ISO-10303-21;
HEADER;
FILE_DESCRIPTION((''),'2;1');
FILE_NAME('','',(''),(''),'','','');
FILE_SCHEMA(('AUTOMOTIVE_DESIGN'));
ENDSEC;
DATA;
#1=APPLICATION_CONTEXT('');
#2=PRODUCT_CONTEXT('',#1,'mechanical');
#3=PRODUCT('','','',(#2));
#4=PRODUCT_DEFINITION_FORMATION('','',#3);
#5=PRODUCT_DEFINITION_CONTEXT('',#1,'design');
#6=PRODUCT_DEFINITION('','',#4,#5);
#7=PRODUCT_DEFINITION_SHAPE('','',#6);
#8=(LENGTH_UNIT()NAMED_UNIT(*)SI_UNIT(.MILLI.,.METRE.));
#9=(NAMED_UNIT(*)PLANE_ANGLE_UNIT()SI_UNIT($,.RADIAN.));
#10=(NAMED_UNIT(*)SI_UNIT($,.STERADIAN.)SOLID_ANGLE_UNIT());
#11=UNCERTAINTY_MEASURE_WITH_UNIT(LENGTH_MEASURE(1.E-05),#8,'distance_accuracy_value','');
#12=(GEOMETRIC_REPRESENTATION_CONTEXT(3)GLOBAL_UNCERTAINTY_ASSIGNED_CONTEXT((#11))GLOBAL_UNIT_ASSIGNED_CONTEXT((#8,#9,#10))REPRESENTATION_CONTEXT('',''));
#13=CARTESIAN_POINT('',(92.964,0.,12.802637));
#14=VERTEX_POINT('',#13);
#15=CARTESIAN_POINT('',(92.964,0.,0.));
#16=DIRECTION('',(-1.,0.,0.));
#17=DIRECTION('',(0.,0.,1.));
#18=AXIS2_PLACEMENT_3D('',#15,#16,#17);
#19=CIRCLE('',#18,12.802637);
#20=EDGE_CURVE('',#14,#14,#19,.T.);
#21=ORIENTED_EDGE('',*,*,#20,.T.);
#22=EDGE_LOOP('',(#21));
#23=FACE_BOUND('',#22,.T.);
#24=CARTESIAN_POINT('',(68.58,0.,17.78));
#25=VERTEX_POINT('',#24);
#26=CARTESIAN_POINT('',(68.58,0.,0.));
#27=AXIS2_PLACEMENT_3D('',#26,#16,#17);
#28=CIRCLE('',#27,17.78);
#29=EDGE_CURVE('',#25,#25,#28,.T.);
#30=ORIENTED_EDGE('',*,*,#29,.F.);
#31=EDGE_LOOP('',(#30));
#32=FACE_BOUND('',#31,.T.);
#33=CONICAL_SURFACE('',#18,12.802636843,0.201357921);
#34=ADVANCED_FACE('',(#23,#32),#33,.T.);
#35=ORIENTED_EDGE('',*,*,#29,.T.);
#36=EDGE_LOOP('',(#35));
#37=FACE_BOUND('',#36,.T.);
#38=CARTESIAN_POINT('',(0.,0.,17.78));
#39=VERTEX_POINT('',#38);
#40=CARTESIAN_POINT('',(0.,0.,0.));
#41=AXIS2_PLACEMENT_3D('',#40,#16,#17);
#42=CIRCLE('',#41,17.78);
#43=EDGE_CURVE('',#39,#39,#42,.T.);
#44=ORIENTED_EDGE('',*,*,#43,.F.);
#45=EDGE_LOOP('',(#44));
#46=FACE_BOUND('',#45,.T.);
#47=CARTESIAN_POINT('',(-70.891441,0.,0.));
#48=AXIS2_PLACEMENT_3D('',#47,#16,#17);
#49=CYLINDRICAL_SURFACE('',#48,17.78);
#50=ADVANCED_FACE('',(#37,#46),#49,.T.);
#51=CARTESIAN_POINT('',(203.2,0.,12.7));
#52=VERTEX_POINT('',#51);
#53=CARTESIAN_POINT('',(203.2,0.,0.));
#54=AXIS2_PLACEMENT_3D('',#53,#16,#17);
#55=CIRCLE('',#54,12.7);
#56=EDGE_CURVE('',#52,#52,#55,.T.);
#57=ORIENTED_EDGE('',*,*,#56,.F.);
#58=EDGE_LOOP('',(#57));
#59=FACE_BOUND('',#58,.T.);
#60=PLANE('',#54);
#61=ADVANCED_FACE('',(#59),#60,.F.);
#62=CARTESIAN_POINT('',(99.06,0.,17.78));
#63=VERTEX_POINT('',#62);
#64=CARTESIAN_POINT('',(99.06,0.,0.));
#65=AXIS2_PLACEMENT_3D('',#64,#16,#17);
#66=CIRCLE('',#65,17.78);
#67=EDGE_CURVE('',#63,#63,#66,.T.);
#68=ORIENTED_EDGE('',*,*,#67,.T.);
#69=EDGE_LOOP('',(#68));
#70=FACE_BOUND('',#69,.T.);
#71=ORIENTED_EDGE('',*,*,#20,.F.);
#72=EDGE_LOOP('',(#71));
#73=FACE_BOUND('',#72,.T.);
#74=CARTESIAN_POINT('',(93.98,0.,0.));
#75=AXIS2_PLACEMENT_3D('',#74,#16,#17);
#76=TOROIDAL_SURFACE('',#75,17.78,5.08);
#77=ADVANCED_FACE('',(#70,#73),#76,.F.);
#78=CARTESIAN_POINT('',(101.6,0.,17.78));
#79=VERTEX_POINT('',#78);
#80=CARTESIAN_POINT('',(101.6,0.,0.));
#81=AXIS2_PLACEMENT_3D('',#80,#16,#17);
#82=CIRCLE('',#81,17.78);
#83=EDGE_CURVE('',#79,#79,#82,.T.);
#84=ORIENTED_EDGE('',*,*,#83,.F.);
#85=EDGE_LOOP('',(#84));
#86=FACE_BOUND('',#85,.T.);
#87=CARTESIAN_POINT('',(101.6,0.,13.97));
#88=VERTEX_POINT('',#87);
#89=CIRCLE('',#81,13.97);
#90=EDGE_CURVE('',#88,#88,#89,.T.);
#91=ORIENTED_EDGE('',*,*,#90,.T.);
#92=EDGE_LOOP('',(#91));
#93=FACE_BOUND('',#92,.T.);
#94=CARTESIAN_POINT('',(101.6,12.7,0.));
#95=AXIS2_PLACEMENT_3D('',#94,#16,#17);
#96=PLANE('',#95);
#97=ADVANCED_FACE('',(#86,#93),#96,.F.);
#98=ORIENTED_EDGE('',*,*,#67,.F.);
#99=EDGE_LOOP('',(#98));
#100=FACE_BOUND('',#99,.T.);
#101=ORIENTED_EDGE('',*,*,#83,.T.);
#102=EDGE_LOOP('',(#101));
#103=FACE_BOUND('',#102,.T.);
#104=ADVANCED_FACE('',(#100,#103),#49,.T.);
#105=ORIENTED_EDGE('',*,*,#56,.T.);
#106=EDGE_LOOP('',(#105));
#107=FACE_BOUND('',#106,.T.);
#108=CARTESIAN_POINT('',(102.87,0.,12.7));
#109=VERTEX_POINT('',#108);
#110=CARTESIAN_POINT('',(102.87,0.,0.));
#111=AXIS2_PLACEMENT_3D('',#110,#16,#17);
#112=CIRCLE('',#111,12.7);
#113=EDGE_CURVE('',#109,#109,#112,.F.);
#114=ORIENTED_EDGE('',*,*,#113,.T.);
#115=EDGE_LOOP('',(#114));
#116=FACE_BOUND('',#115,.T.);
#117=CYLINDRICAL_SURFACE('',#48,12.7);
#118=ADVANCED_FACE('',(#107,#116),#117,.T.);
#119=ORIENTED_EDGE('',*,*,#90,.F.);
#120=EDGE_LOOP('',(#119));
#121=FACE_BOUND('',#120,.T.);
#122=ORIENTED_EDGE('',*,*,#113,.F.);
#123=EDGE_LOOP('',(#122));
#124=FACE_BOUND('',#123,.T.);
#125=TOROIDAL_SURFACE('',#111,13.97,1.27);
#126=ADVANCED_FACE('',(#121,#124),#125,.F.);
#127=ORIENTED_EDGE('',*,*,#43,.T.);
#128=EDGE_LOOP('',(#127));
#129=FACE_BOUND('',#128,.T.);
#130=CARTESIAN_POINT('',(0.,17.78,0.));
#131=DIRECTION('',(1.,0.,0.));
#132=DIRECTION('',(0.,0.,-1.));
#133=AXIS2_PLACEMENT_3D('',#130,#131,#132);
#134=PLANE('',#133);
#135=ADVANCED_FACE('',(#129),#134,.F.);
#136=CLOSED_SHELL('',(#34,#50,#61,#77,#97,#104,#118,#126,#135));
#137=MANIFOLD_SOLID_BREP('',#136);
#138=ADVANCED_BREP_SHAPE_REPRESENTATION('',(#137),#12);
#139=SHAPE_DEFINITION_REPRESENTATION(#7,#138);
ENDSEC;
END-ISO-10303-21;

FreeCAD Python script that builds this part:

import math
import FreeCAD as App
import Part
import Sketcher
from FreeCAD import Vector
Q = App.Units.Quantity


def edges_at(feature, points):
    """Names of the edges that pass closest to the given points."""
    edges = feature.Shape.Edges
    near = lambda p: min(range(len(edges)), key=lambda i: edges[i].distToShape(Part.Vertex(*p))[0])
    return sorted({f"Edge{near(p) + 1}" for p in points})

doc = App.newDocument("Part")
body = doc.addObject("PartDesign::Body", "Body")

sketch1 = body.newObject("Sketcher::SketchObject", "Sketch")
sketch1.AttachmentSupport = (doc.getObject("XY_Plane"), [""])
sketch1.MapMode = "FlatFace"
sketch1.addGeometry(Part.LineSegment(Vector(0, 17.8, 0), Vector(0, 0, 0)), False)
sketch1.addGeometry(Part.LineSegment(Vector(0, 0, 0), Vector(203.2, 0, 0)), False)
sketch1.addGeometry(Part.LineSegment(Vector(203.2, 0, 0), Vector(203.2, 12.7, 0)), False)
sketch1.addGeometry(Part.LineSegment(Vector(203.2, 12.7, 0), Vector(101.6, 12.7, 0)), False)
sketch1.addGeometry(Part.LineSegment(Vector(101.6, 12.7, 0), Vector(101.6, 17.8, 0)), False)
sketch1.addGeometry(Part.LineSegment(Vector(101.6, 17.8, 0), Vector(99.1, 17.8, 0)), False)
sketch1.addGeometry(Part.ArcOfCircle(Part.Circle(Vector(94, 17.8, 0), Vector(0, 0, 1), 5.1), math.radians(-102), math.radians(0)), False)
sketch1.addGeometry(Part.LineSegment(Vector(93, 12.8, 0), Vector(68.6, 17.8, 0)), False)
sketch1.addGeometry(Part.LineSegment(Vector(68.6, 17.8, 0), Vector(0, 17.8, 0)), False)
sketch1.addConstraint(Sketcher.Constraint("Coincident", 0, 2, 1, 1))
sketch1.addConstraint(Sketcher.Constraint("Coincident", 1, 2, 2, 1))
sketch1.addConstraint(Sketcher.Constraint("Coincident", 2, 2, 3, 1))
sketch1.addConstraint(Sketcher.Constraint("Coincident", 3, 2, 4, 1))
sketch1.addConstraint(Sketcher.Constraint("Coincident", 4, 2, 5, 1))
sketch1.addConstraint(Sketcher.Constraint("Coincident", 5, 2, 6, 2))
sketch1.addConstraint(Sketcher.Constraint("Tangent", 6, 1, 7, 1))
sketch1.addConstraint(Sketcher.Constraint("Coincident", 7, 2, 8, 1))
sketch1.addConstraint(Sketcher.Constraint("Coincident", 8, 2, 0, 1))
sketch1.addConstraint(Sketcher.Constraint("Vertical", 0))
sketch1.addConstraint(Sketcher.Constraint("Horizontal", 1))
sketch1.addConstraint(Sketcher.Constraint("Vertical", 2))
sketch1.addConstraint(Sketcher.Constraint("Horizontal", 3))
sketch1.addConstraint(Sketcher.Constraint("Vertical", 4))
sketch1.addConstraint(Sketcher.Constraint("Horizontal", 5))
sketch1.addConstraint(Sketcher.Constraint("Horizontal", 8))
sketch1.addConstraint(Sketcher.Constraint("Coincident", 0, 2, -1, 1))
sketch1.addConstraint(Sketcher.Constraint("Horizontal", 6, 3, 4, 2))
sketch1.addConstraint(Sketcher.Constraint("Horizontal", 5, 2, 7, 2))
sketch1.addConstraint(Sketcher.Constraint("Radius", 6, Q("0.2 in")))
sketch1.addConstraint(Sketcher.Constraint("DistanceX", 1, 1, 1, 2, Q("8 in")))
sketch1.addConstraint(Sketcher.Constraint("DistanceX", 3, 2, 3, 1, Q("4 in")))
sketch1.addConstraint(Sketcher.Constraint("DistanceX", 5, 2, 5, 1, Q("0.1 in")))
sketch1.addConstraint(Sketcher.Constraint("DistanceX", 8, 2, 8, 1, Q("2.7 in")))
sketch1.addConstraint(Sketcher.Constraint("DistanceY", 0, 2, 0, 1, Q("0.7 in")))
sketch1.addConstraint(Sketcher.Constraint("DistanceY", 2, 1, 2, 2, Q("0.5 in")))
revolution = body.newObject("PartDesign::Revolution", "Revolution")
revolution.Profile = sketch1
revolution.ReferenceAxis = (sketch1, ["H_Axis"])
revolution.Angle = 360
doc.recompute()

fillet = body.newObject("PartDesign::Fillet", "Fillet")
fillet.Base = (revolution, edges_at(revolution, [(101.6, -12.7, 0)]))
fillet.Radius = Q("0.05 in")

doc.recompute()
